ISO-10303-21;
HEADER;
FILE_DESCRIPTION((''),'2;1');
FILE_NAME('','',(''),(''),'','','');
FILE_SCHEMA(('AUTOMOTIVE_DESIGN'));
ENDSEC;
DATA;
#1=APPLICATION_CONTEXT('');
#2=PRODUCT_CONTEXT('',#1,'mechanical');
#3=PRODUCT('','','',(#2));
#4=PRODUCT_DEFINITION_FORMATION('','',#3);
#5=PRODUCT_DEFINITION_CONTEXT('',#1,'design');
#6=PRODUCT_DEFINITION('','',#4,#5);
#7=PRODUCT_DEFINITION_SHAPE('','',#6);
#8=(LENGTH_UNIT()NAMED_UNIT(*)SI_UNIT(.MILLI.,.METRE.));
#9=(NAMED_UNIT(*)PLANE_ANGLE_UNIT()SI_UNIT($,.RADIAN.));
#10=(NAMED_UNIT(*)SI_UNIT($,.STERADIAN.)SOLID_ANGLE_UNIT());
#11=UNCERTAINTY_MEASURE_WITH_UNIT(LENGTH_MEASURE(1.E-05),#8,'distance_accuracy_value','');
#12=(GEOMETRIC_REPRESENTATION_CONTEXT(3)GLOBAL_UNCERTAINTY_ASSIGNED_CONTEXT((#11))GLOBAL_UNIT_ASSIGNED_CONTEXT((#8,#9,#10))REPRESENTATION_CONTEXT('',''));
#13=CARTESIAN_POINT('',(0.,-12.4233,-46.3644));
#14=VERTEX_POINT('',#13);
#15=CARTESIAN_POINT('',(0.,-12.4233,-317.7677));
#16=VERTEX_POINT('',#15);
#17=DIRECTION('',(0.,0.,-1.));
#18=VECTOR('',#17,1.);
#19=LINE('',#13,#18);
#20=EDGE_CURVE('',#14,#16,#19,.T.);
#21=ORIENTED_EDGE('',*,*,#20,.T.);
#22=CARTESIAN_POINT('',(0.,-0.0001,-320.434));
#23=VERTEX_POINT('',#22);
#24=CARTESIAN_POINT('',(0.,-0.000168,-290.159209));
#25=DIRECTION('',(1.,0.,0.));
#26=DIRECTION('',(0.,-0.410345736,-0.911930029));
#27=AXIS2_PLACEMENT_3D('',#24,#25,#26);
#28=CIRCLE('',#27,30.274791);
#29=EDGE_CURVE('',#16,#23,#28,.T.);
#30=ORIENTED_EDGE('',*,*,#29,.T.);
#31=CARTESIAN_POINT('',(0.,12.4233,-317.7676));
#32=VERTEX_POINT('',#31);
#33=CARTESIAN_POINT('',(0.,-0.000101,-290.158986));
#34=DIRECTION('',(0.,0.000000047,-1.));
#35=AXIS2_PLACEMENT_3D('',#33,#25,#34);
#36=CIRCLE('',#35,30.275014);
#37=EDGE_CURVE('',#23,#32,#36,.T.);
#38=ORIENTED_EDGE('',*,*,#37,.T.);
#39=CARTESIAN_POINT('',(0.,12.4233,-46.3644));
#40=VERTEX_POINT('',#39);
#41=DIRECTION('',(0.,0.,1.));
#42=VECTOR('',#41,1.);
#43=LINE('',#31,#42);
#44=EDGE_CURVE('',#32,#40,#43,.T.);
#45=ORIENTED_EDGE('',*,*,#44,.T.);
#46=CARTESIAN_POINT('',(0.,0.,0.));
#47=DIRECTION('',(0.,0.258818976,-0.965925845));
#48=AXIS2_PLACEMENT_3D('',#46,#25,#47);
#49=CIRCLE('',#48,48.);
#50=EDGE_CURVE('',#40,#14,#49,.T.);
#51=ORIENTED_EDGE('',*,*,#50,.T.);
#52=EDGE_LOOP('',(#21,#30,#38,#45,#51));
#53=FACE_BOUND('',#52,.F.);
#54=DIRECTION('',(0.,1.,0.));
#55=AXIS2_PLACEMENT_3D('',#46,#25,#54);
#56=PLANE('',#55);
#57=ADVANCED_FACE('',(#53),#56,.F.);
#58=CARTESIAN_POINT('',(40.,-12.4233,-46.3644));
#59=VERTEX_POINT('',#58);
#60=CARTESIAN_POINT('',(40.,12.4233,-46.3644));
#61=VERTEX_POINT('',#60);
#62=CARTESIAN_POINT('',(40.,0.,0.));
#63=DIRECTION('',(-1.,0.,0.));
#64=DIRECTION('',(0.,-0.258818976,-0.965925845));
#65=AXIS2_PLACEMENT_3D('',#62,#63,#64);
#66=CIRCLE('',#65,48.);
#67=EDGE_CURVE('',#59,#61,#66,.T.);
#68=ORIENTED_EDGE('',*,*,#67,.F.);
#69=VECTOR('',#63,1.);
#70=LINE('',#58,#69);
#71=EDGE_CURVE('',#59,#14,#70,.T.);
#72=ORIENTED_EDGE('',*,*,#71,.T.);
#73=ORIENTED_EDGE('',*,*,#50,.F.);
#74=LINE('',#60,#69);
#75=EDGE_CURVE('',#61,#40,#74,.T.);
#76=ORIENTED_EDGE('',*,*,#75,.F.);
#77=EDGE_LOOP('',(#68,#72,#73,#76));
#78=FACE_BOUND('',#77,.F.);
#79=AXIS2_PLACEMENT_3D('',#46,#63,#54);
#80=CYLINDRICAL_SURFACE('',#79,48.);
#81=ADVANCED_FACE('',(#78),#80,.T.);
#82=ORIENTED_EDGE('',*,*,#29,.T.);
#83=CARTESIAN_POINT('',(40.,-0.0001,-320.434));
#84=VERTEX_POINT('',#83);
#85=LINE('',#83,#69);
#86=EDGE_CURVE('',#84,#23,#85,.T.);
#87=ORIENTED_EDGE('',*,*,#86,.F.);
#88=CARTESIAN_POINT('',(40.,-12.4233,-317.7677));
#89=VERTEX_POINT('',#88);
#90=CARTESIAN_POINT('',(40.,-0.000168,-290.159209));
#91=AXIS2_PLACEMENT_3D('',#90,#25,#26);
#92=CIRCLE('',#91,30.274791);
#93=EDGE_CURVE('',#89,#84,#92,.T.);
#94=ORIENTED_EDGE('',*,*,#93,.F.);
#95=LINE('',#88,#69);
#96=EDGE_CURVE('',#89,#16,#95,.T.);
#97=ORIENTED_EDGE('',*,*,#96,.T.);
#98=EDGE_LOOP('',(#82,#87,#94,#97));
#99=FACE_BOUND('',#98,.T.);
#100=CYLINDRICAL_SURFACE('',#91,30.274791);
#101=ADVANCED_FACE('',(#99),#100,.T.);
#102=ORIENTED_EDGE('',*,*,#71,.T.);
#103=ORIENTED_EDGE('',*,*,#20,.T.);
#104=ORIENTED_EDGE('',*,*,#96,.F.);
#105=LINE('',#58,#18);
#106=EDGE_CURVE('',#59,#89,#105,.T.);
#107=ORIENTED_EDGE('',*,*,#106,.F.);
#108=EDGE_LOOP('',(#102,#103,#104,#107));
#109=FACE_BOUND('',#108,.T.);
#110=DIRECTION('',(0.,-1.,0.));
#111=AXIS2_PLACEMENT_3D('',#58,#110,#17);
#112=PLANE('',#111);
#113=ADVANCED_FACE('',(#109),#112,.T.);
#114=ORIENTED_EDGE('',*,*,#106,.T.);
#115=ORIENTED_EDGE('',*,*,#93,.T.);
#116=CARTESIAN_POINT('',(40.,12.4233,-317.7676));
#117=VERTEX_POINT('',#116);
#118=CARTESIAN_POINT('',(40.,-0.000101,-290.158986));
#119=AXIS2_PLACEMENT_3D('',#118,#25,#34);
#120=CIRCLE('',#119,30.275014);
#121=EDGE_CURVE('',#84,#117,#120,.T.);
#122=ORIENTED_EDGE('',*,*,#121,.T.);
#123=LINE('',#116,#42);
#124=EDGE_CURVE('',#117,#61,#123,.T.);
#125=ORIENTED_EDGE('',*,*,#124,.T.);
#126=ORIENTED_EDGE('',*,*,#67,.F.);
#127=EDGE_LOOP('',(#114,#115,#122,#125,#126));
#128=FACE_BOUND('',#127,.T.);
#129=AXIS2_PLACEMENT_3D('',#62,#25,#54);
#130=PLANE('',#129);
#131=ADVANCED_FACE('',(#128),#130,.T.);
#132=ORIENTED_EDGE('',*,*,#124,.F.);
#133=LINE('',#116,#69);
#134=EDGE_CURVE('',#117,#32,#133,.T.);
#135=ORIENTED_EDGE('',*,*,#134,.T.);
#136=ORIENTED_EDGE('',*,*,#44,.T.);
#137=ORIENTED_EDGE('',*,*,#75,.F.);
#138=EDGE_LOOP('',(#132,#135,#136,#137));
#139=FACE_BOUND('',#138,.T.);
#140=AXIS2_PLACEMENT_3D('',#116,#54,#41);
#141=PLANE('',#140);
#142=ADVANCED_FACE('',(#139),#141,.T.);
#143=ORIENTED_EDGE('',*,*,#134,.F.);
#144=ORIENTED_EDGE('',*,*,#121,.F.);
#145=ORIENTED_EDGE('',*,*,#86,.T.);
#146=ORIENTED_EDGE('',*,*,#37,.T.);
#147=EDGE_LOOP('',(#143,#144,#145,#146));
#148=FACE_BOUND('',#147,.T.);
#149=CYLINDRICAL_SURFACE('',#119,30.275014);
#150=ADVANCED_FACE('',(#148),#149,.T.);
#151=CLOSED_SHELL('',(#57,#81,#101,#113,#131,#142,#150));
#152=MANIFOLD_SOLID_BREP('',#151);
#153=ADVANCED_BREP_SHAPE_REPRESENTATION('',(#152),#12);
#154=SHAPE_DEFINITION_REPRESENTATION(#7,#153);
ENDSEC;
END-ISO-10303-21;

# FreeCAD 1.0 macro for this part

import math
import FreeCAD as App
import Part
import Sketcher
from FreeCAD import Vector

doc = App.newDocument("Part")
body = doc.addObject("PartDesign::Body", "Body")

# Sketch on YZ plane
sketch1 = doc.addObject("Sketcher::SketchObject", "Sketch")
body.addObject(sketch1)
sketch1.AttachmentSupport = (doc.YZ_Plane, [""])
sketch1.MapMode = "FlatFace"
sketch1.addGeometry(Part.Circle(Vector(0, 0, 0), Vector(0, 0, 1), 48), False)
sketch1.addConstraint([
    Sketcher.Constraint("Coincident", 0, 3, -1, 1),
    Sketcher.Constraint("Diameter", 0, 96.0),
])
pad1 = doc.addObject("PartDesign::Pad", "Pad")
body.addObject(pad1)
pad1.Profile = sketch1
pad1.Length = 40

# Sketch on YZ plane
sketch2 = doc.addObject("Sketcher::SketchObject", "Sketch001")
body.addObject(sketch2)
sketch2.AttachmentSupport = (doc.YZ_Plane, [""])
sketch2.MapMode = "FlatFace"
sketch2.AttachmentOffset = App.Placement(Vector(0, 0, 40), App.Rotation())
sketch2.addGeometry([
    Part.ArcOfCircle(Part.Circle(Vector(0, 0, 0), Vector(0, 0, 1), 48), math.radians(-105), math.radians(-75)),  # 0
    Part.LineSegment(Vector(-12, -46, 0), Vector(-12, -318, 0)),  # 1
    Part.ArcOfCircle(Part.Circle(Vector(0, -290, 0), Vector(0, 0, 1), 30), math.radians(-114), math.radians(-90)),  # 2
    Part.ArcOfCircle(Part.Circle(Vector(0, -290, 0), Vector(0, 0, 1), 30), math.radians(-90), math.radians(-66)),  # 3
    Part.LineSegment(Vector(12, -318, 0), Vector(12, -46, 0)),  # 4
], False)
sketch2.addConstraint([
    Sketcher.Constraint("Coincident", 0, 1, 1, 1),
    Sketcher.Constraint("Coincident", 1, 2, 2, 1),
    Sketcher.Constraint("Tangent", 2, 2, 3, 1),
    Sketcher.Constraint("Coincident", 3, 2, 4, 1),
    Sketcher.Constraint("Coincident", 4, 2, 0, 2),
    Sketcher.Constraint("Vertical", 1),
    Sketcher.Constraint("Vertical", 4),
    Sketcher.Constraint("Coincident", 0, 3, -1, 1),
    Sketcher.Constraint("Equal", 2, 3),
    Sketcher.Constraint("Symmetric", 1, 2, 3, 2, -2),
    Sketcher.Constraint("PointOnObject", 2, 2, -2),
    Sketcher.Constraint("Radius", 0, 48.0),
    Sketcher.Constraint("Radius", 2, 30.275),
    Sketcher.Constraint("DistanceY", 1, 2, 1, 1, 271.4033),
    Sketcher.Constraint("DistanceY", 2, 3, -1, 1, 290.159),
])
pad2 = doc.addObject("PartDesign::Pad", "Pad001")
body.addObject(pad2)
pad2.Profile = sketch2
pad2.Length = 40
pad2.Reversed = True

doc.recompute()
